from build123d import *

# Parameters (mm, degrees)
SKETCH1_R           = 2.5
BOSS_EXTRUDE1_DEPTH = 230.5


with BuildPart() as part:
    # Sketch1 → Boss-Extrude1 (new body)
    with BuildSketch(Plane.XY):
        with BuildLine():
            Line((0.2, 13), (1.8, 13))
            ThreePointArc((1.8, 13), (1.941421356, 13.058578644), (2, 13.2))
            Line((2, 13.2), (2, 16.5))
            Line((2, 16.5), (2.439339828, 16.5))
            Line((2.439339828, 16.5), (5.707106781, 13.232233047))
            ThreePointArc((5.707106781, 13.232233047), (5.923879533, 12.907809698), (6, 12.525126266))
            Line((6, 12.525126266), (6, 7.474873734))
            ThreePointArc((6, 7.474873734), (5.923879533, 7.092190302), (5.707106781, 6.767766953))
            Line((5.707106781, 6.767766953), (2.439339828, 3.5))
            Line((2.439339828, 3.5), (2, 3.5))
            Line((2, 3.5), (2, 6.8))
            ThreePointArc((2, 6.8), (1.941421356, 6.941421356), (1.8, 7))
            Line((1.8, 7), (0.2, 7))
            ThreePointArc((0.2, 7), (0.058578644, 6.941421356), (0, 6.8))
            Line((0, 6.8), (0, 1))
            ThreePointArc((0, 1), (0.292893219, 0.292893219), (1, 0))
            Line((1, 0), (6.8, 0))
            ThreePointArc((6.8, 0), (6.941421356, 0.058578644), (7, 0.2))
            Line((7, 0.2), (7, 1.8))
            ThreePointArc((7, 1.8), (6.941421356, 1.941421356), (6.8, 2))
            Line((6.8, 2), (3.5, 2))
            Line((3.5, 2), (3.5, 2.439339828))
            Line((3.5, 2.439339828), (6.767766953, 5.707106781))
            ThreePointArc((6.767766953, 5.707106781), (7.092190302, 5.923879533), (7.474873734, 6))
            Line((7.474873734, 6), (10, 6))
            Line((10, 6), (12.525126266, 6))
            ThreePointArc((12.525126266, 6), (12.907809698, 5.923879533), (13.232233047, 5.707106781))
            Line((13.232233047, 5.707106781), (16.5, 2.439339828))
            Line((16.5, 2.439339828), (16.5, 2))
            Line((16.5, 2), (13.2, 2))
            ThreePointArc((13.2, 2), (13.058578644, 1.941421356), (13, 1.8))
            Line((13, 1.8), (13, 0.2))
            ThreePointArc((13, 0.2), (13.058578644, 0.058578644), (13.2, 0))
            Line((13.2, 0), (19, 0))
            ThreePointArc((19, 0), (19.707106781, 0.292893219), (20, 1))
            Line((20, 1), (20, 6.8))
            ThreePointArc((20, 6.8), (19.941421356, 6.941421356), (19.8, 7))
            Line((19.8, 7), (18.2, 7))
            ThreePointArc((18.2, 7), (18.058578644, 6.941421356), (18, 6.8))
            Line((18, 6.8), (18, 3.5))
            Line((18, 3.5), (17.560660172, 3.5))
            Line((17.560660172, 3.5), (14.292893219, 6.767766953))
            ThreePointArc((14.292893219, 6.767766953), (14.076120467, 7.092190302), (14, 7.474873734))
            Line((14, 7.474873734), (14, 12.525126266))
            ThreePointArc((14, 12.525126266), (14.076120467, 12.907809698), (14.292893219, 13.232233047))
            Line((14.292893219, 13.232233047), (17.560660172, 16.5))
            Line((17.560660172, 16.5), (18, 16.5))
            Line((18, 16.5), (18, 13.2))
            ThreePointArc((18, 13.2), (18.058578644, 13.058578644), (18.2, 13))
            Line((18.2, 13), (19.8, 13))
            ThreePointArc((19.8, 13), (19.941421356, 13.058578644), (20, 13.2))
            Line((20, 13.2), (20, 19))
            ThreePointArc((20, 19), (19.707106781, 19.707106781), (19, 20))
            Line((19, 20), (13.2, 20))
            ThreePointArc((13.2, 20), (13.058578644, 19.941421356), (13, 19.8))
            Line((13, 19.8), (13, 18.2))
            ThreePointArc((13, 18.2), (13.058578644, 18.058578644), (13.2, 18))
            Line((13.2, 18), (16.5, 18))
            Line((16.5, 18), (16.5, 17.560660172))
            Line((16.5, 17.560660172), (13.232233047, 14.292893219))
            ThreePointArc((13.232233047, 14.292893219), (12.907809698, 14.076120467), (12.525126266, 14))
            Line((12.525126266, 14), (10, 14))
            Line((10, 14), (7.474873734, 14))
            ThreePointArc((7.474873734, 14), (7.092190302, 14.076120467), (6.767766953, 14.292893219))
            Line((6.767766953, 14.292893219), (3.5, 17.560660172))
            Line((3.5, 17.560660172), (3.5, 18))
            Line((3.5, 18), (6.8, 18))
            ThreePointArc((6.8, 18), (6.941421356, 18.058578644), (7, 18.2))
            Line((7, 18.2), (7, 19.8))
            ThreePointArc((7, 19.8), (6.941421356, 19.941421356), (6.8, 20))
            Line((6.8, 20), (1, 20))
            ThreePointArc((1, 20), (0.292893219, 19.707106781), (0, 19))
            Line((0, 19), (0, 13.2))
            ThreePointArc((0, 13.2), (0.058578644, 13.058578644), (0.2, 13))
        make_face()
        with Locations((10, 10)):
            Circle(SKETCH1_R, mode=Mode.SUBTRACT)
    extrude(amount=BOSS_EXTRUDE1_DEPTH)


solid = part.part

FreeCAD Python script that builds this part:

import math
import FreeCAD as App
import Part
import Sketcher
Q = App.Units.Quantity

doc = App.newDocument("Part")
body = doc.addObject("PartDesign::Body", "Body")

sketch1 = body.newObject("Sketcher::SketchObject", "Sketch")
sketch1.AttachmentSupport = (doc.getObject("XY_Plane"), [""])
sketch1.MapMode = "FlatFace"
sketch1.addGeometry(Part.LineSegment(App.Vector(0.2, 13, 0), App.Vector(1.8, 13, 0)), False)
sketch1.addGeometry(Part.ArcOfCircle(Part.Circle(App.Vector(1.8, 13.2, 0), App.Vector(0, 0, 1), 0.2), math.radians(-90), math.radians(0)), False)
sketch1.addGeometry(Part.LineSegment(App.Vector(2, 13.2, 0), App.Vector(2, 16.5, 0)), False)
sketch1.addGeometry(Part.LineSegment(App.Vector(2, 16.5, 0), App.Vector(2.44, 16.5, 0)), False)
sketch1.addGeometry(Part.LineSegment(App.Vector(2.44, 16.5, 0), App.Vector(5.71, 13.23, 0)), False)
sketch1.addGeometry(Part.ArcOfCircle(Part.Circle(App.Vector(5, 12.53, 0), App.Vector(0, 0, 1), 1), math.radians(0), math.radians(45)), False)
sketch1.addGeometry(Part.LineSegment(App.Vector(6, 12.53, 0), App.Vector(6, 7.47, 0)), False)
sketch1.addGeometry(Part.ArcOfCircle(Part.Circle(App.Vector(5, 7.47, 0), App.Vector(0, 0, 1), 1), math.radians(-45), math.radians(0)), False)
sketch1.addGeometry(Part.LineSegment(App.Vector(5.71, 6.77, 0), App.Vector(2.44, 3.5, 0)), False)
sketch1.addGeometry(Part.LineSegment(App.Vector(2.44, 3.5, 0), App.Vector(2, 3.5, 0)), False)
sketch1.addGeometry(Part.LineSegment(App.Vector(2, 3.5, 0), App.Vector(2, 6.8, 0)), False)
sketch1.addGeometry(Part.ArcOfCircle(Part.Circle(App.Vector(1.8, 6.8, 0), App.Vector(0, 0, 1), 0.2), math.radians(0), math.radians(90)), False)
sketch1.addGeometry(Part.LineSegment(App.Vector(1.8, 7, 0), App.Vector(0.2, 7, 0)), False)
sketch1.addGeometry(Part.ArcOfCircle(Part.Circle(App.Vector(0.2, 6.8, 0), App.Vector(0, 0, 1), 0.2), math.radians(90), math.radians(180)), False)
sketch1.addGeometry(Part.LineSegment(App.Vector(0, 6.8, 0), App.Vector(0, 1, 0)), False)
sketch1.addGeometry(Part.ArcOfCircle(Part.Circle(App.Vector(1, 1, 0), App.Vector(0, 0, 1), 1), math.radians(-180), math.radians(-90)), False)
sketch1.addGeometry(Part.LineSegment(App.Vector(1, 0, 0), App.Vector(6.8, 0, 0)), False)
sketch1.addGeometry(Part.ArcOfCircle(Part.Circle(App.Vector(6.8, 0.2, 0), App.Vector(0, 0, 1), 0.2), math.radians(-90), math.radians(0)), False)
sketch1.addGeometry(Part.LineSegment(App.Vector(7, 0.2, 0), App.Vector(7, 1.8, 0)), False)
sketch1.addGeometry(Part.ArcOfCircle(Part.Circle(App.Vector(6.8, 1.8, 0), App.Vector(0, 0, 1), 0.2), math.radians(0), math.radians(90)), False)
sketch1.addGeometry(Part.LineSegment(App.Vector(6.8, 2, 0), App.Vector(3.5, 2, 0)), False)
sketch1.addGeometry(Part.LineSegment(App.Vector(3.5, 2, 0), App.Vector(3.5, 2.44, 0)), False)
sketch1.addGeometry(Part.LineSegment(App.Vector(3.5, 2.44, 0), App.Vector(6.77, 5.71, 0)), False)
sketch1.addGeometry(Part.ArcOfCircle(Part.Circle(App.Vector(7.47, 5, 0), App.Vector(0, 0, 1), 1), math.radians(90), math.radians(135)), False)
sketch1.addGeometry(Part.LineSegment(App.Vector(7.47, 6, 0), App.Vector(12.53, 6, 0)), False)
sketch1.addGeometry(Part.ArcOfCircle(Part.Circle(App.Vector(12.53, 5, 0), App.Vector(0, 0, 1), 1), math.radians(45), math.radians(90)), False)
sketch1.addGeometry(Part.LineSegment(App.Vector(13.23, 5.71, 0), App.Vector(16.5, 2.44, 0)), False)
sketch1.addGeometry(Part.LineSegment(App.Vector(16.5, 2.44, 0), App.Vector(16.5, 2, 0)), False)
sketch1.addGeometry(Part.LineSegment(App.Vector(16.5, 2, 0), App.Vector(13.2, 2, 0)), False)
sketch1.addGeometry(Part.ArcOfCircle(Part.Circle(App.Vector(13.2, 1.8, 0), App.Vector(0, 0, 1), 0.2), math.radians(90), math.radians(180)), False)
sketch1.addGeometry(Part.LineSegment(App.Vector(13, 1.8, 0), App.Vector(13, 0.2, 0)), False)
sketch1.addGeometry(Part.ArcOfCircle(Part.Circle(App.Vector(13.2, 0.2, 0), App.Vector(0, 0, 1), 0.2), math.radians(-180), math.radians(-90)), False)
sketch1.addGeometry(Part.LineSegment(App.Vector(13.2, 0, 0), App.Vector(19, 0, 0)), False)
sketch1.addGeometry(Part.ArcOfCircle(Part.Circle(App.Vector(19, 1, 0), App.Vector(0, 0, 1), 1), math.radians(-90), math.radians(0)), False)
sketch1.addGeometry(Part.LineSegment(App.Vector(20, 1, 0), App.Vector(20, 6.8, 0)), False)
sketch1.addGeometry(Part.ArcOfCircle(Part.Circle(App.Vector(19.8, 6.8, 0), App.Vector(0, 0, 1), 0.2), math.radians(0), math.radians(90)), False)
sketch1.addGeometry(Part.LineSegment(App.Vector(19.8, 7, 0), App.Vector(18.2, 7, 0)), False)
sketch1.addGeometry(Part.ArcOfCircle(Part.Circle(App.Vector(18.2, 6.8, 0), App.Vector(0, 0, 1), 0.2), math.radians(90), math.radians(180)), False)
sketch1.addGeometry(Part.LineSegment(App.Vector(18, 6.8, 0), App.Vector(18, 3.5, 0)), False)
sketch1.addGeometry(Part.LineSegment(App.Vector(18, 3.5, 0), App.Vector(17.56, 3.5, 0)), False)
sketch1.addGeometry(Part.LineSegment(App.Vector(17.56, 3.5, 0), App.Vector(14.29, 6.77, 0)), False)
sketch1.addGeometry(Part.ArcOfCircle(Part.Circle(App.Vector(15, 7.47, 0), App.Vector(0, 0, 1), 1), math.radians(180), math.radians(225)), False)
sketch1.addGeometry(Part.LineSegment(App.Vector(14, 7.47, 0), App.Vector(14, 12.53, 0)), False)
sketch1.addGeometry(Part.ArcOfCircle(Part.Circle(App.Vector(15, 12.53, 0), App.Vector(0, 0, 1), 1), math.radians(135), math.radians(180)), False)
sketch1.addGeometry(Part.LineSegment(App.Vector(14.29, 13.23, 0), App.Vector(17.56, 16.5, 0)), False)
sketch1.addGeometry(Part.LineSegment(App.Vector(17.56, 16.5, 0), App.Vector(18, 16.5, 0)), False)
sketch1.addGeometry(Part.LineSegment(App.Vector(18, 16.5, 0), App.Vector(18, 13.2, 0)), False)
sketch1.addGeometry(Part.ArcOfCircle(Part.Circle(App.Vector(18.2, 13.2, 0), App.Vector(0, 0, 1), 0.2), math.radians(-180), math.radians(-90)), False)
sketch1.addGeometry(Part.LineSegment(App.Vector(18.2, 13, 0), App.Vector(19.8, 13, 0)), False)
sketch1.addGeometry(Part.ArcOfCircle(Part.Circle(App.Vector(19.8, 13.2, 0), App.Vector(0, 0, 1), 0.2), math.radians(-90), math.radians(0)), False)
sketch1.addGeometry(Part.LineSegment(App.Vector(20, 13.2, 0), App.Vector(20, 19, 0)), False)
sketch1.addGeometry(Part.ArcOfCircle(Part.Circle(App.Vector(19, 19, 0), App.Vector(0, 0, 1), 1), math.radians(0), math.radians(90)), False)
sketch1.addGeometry(Part.LineSegment(App.Vector(19, 20, 0), App.Vector(13.2, 20, 0)), False)
sketch1.addGeometry(Part.ArcOfCircle(Part.Circle(App.Vector(13.2, 19.8, 0), App.Vector(0, 0, 1), 0.2), math.radians(90), math.radians(180)), False)
sketch1.addGeometry(Part.LineSegment(App.Vector(13, 19.8, 0), App.Vector(13, 18.2, 0)), False)
sketch1.addGeometry(Part.ArcOfCircle(Part.Circle(App.Vector(13.2, 18.2, 0), App.Vector(0, 0, 1), 0.2), math.radians(-180), math.radians(-90)), False)
sketch1.addGeometry(Part.LineSegment(App.Vector(13.2, 18, 0), App.Vector(16.5, 18, 0)), False)
sketch1.addGeometry(Part.LineSegment(App.Vector(16.5, 18, 0), App.Vector(16.5, 17.56, 0)), False)
sketch1.addGeometry(Part.LineSegment(App.Vector(16.5, 17.56, 0), App.Vector(13.23, 14.29, 0)), False)
sketch1.addGeometry(Part.ArcOfCircle(Part.Circle(App.Vector(12.53, 15, 0), App.Vector(0, 0, 1), 1), math.radians(-90), math.radians(-45)), False)
sketch1.addGeometry(Part.LineSegment(App.Vector(12.53, 14, 0), App.Vector(7.47, 14, 0)), False)
sketch1.addGeometry(Part.ArcOfCircle(Part.Circle(App.Vector(7.47, 15, 0), App.Vector(0, 0, 1), 1), math.radians(-135), math.radians(-90)), False)
sketch1.addGeometry(Part.LineSegment(App.Vector(6.77, 14.29, 0), App.Vector(3.5, 17.56, 0)), False)
sketch1.addGeometry(Part.LineSegment(App.Vector(3.5, 17.56, 0), App.Vector(3.5, 18, 0)), False)
sketch1.addGeometry(Part.LineSegment(App.Vector(3.5, 18, 0), App.Vector(6.8, 18, 0)), False)
sketch1.addGeometry(Part.ArcOfCircle(Part.Circle(App.Vector(6.8, 18.2, 0), App.Vector(0, 0, 1), 0.2), math.radians(-90), math.radians(0)), False)
sketch1.addGeometry(Part.LineSegment(App.Vector(7, 18.2, 0), App.Vector(7, 19.8, 0)), False)
sketch1.addGeometry(Part.ArcOfCircle(Part.Circle(App.Vector(6.8, 19.8, 0), App.Vector(0, 0, 1), 0.2), math.radians(0), math.radians(90)), False)
sketch1.addGeometry(Part.LineSegment(App.Vector(6.8, 20, 0), App.Vector(1, 20, 0)), False)
sketch1.addGeometry(Part.ArcOfCircle(Part.Circle(App.Vector(1, 19, 0), App.Vector(0, 0, 1), 1), math.radians(90), math.radians(180)), False)
sketch1.addGeometry(Part.LineSegment(App.Vector(0, 19, 0), App.Vector(0, 13.2, 0)), False)
sketch1.addGeometry(Part.ArcOfCircle(Part.Circle(App.Vector(0.2, 13.2, 0), App.Vector(0, 0, 1), 0.2), math.radians(-180), math.radians(-90)), False)
sketch1.addGeometry(Part.Circle(App.Vector(10, 10, 0), App.Vector(0, 0, 1), 2.5), False)
sketch1.addConstraint(Sketcher.Constraint("Tangent", 0, 2, 1, 1))
sketch1.addConstraint(Sketcher.Constraint("Tangent", 1, 2, 2, 1))
sketch1.addConstraint(Sketcher.Constraint("Coincident", 2, 2, 3, 1))
sketch1.addConstraint(Sketcher.Constraint("Coincident", 3, 2, 4, 1))
sketch1.addConstraint(Sketcher.Constraint("Tangent", 4, 2, 5, 2))
sketch1.addConstraint(Sketcher.Constraint("Tangent", 5, 1, 6, 1))
sketch1.addConstraint(Sketcher.Constraint("Tangent", 6, 2, 7, 2))
sketch1.addConstraint(Sketcher.Constraint("Tangent", 7, 1, 8, 1))
sketch1.addConstraint(Sketcher.Constraint("Coincident", 8, 2, 9, 1))
sketch1.addConstraint(Sketcher.Constraint("Coincident", 9, 2, 10, 1))
sketch1.addConstraint(Sketcher.Constraint("Tangent", 10, 2, 11, 1))
sketch1.addConstraint(Sketcher.Constraint("Tangent", 11, 2, 12, 1))
sketch1.addConstraint(Sketcher.Constraint("Tangent", 12, 2, 13, 1))
sketch1.addConstraint(Sketcher.Constraint("Tangent", 13, 2, 14, 1))
sketch1.addConstraint(Sketcher.Constraint("Tangent", 14, 2, 15, 1))
sketch1.addConstraint(Sketcher.Constraint("Tangent", 15, 2, 16, 1))
sketch1.addConstraint(Sketcher.Constraint("Tangent", 16, 2, 17, 1))
sketch1.addConstraint(Sketcher.Constraint("Tangent", 17, 2, 18, 1))
sketch1.addConstraint(Sketcher.Constraint("Tangent", 18, 2, 19, 1))
sketch1.addConstraint(Sketcher.Constraint("Tangent", 19, 2, 20, 1))
sketch1.addConstraint(Sketcher.Constraint("Coincident", 20, 2, 21, 1))
sketch1.addConstraint(Sketcher.Constraint("Coincident", 21, 2, 22, 1))
sketch1.addConstraint(Sketcher.Constraint("Tangent", 22, 2, 23, 2))
sketch1.addConstraint(Sketcher.Constraint("Tangent", 23, 1, 24, 1))
sketch1.addConstraint(Sketcher.Constraint("Tangent", 24, 2, 25, 2))
sketch1.addConstraint(Sketcher.Constraint("Tangent", 25, 1, 26, 1))
sketch1.addConstraint(Sketcher.Constraint("Coincident", 26, 2, 27, 1))
sketch1.addConstraint(Sketcher.Constraint("Coincident", 27, 2, 28, 1))
sketch1.addConstraint(Sketcher.Constraint("Tangent", 28, 2, 29, 1))
sketch1.addConstraint(Sketcher.Constraint("Tangent", 29, 2, 30, 1))
sketch1.addConstraint(Sketcher.Constraint("Tangent", 30, 2, 31, 1))
sketch1.addConstraint(Sketcher.Constraint("Tangent", 31, 2, 32, 1))
sketch1.addConstraint(Sketcher.Constraint("Tangent", 32, 2, 33, 1))
sketch1.addConstraint(Sketcher.Constraint("Tangent", 33, 2, 34, 1))
sketch1.addConstraint(Sketcher.Constraint("Tangent", 34, 2, 35, 1))
sketch1.addConstraint(Sketcher.Constraint("Tangent", 35, 2, 36, 1))
sketch1.addConstraint(Sketcher.Constraint("Tangent", 36, 2, 37, 1))
sketch1.addConstraint(Sketcher.Constraint("Tangent", 37, 2, 38, 1))
sketch1.addConstraint(Sketcher.Constraint("Coincident", 38, 2, 39, 1))
sketch1.addConstraint(Sketcher.Constraint("Coincident", 39, 2, 40, 1))
sketch1.addConstraint(Sketcher.Constraint("Tangent", 40, 2, 41, 2))
sketch1.addConstraint(Sketcher.Constraint("Tangent", 41, 1, 42, 1))
sketch1.addConstraint(Sketcher.Constraint("Tangent", 42, 2, 43, 2))
sketch1.addConstraint(Sketcher.Constraint("Tangent", 43, 1, 44, 1))
sketch1.addConstraint(Sketcher.Constraint("Coincident", 44, 2, 45, 1))
sketch1.addConstraint(Sketcher.Constraint("Coincident", 45, 2, 46, 1))
sketch1.addConstraint(Sketcher.Constraint("Tangent", 46, 2, 47, 1))
sketch1.addConstraint(Sketcher.Constraint("Tangent", 47, 2, 48, 1))
sketch1.addConstraint(Sketcher.Constraint("Tangent", 48, 2, 49, 1))
sketch1.addConstraint(Sketcher.Constraint("Tangent", 49, 2, 50, 1))
sketch1.addConstraint(Sketcher.Constraint("Tangent", 50, 2, 51, 1))
sketch1.addConstraint(Sketcher.Constraint("Tangent", 51, 2, 52, 1))
sketch1.addConstraint(Sketcher.Constraint("Tangent", 52, 2, 53, 1))
sketch1.addConstraint(Sketcher.Constraint("Tangent", 53, 2, 54, 1))
sketch1.addConstraint(Sketcher.Constraint("Tangent", 54, 2, 55, 1))
sketch1.addConstraint(Sketcher.Constraint("Tangent", 55, 2, 56, 1))
sketch1.addConstraint(Sketcher.Constraint("Coincident", 56, 2, 57, 1))
sketch1.addConstraint(Sketcher.Constraint("Coincident", 57, 2, 58, 1))
sketch1.addConstraint(Sketcher.Constraint("Tangent", 58, 2, 59, 2))
sketch1.addConstraint(Sketcher.Constraint("Tangent", 59, 1, 60, 1))
sketch1.addConstraint(Sketcher.Constraint("Tangent", 60, 2, 61, 2))
sketch1.addConstraint(Sketcher.Constraint("Tangent", 61, 1, 62, 1))
sketch1.addConstraint(Sketcher.Constraint("Coincident", 62, 2, 63, 1))
sketch1.addConstraint(Sketcher.Constraint("Coincident", 63, 2, 64, 1))
sketch1.addConstraint(Sketcher.Constraint("Tangent", 64, 2, 65, 1))
sketch1.addConstraint(Sketcher.Constraint("Tangent", 65, 2, 66, 1))
sketch1.addConstraint(Sketcher.Constraint("Tangent", 66, 2, 67, 1))
sketch1.addConstraint(Sketcher.Constraint("Tangent", 67, 2, 68, 1))
sketch1.addConstraint(Sketcher.Constraint("Tangent", 68, 2, 69, 1))
sketch1.addConstraint(Sketcher.Constraint("Tangent", 69, 2, 70, 1))
sketch1.addConstraint(Sketcher.Constraint("Tangent", 70, 2, 71, 1))
sketch1.addConstraint(Sketcher.Constraint("Tangent", 71, 2, 0, 1))
sketch1.addConstraint(Sketcher.Constraint("Horizontal", 0))
sketch1.addConstraint(Sketcher.Constraint("Vertical", 2))
sketch1.addConstraint(Sketcher.Constraint("Horizontal", 3))
sketch1.addConstraint(Sketcher.Constraint("Vertical", 6))
sketch1.addConstraint(Sketcher.Constraint("Horizontal", 9))
sketch1.addConstraint(Sketcher.Constraint("Vertical", 10))
sketch1.addConstraint(Sketcher.Constraint("Horizontal", 12))
sketch1.addConstraint(Sketcher.Constraint("Vertical", 14))
sketch1.addConstraint(Sketcher.Constraint("Horizontal", 16))
sketch1.addConstraint(Sketcher.Constraint("Vertical", 18))
sketch1.addConstraint(Sketcher.Constraint("Horizontal", 20))
sketch1.addConstraint(Sketcher.Constraint("Vertical", 21))
sketch1.addConstraint(Sketcher.Constraint("Horizontal", 24))
sketch1.addConstraint(Sketcher.Constraint("Vertical", 27))
sketch1.addConstraint(Sketcher.Constraint("Horizontal", 28))
sketch1.addConstraint(Sketcher.Constraint("Vertical", 30))
sketch1.addConstraint(Sketcher.Constraint("Horizontal", 32))
sketch1.addConstraint(Sketcher.Constraint("Vertical", 34))
sketch1.addConstraint(Sketcher.Constraint("Horizontal", 36))
sketch1.addConstraint(Sketcher.Constraint("Vertical", 38))
sketch1.addConstraint(Sketcher.Constraint("Horizontal", 39))
sketch1.addConstraint(Sketcher.Constraint("Vertical", 42))
sketch1.addConstraint(Sketcher.Constraint("Horizontal", 45))
sketch1.addConstraint(Sketcher.Constraint("Vertical", 46))
sketch1.addConstraint(Sketcher.Constraint("Horizontal", 48))
sketch1.addConstraint(Sketcher.Constraint("Vertical", 50))
sketch1.addConstraint(Sketcher.Constraint("Horizontal", 52))
sketch1.addConstraint(Sketcher.Constraint("Vertical", 54))
sketch1.addConstraint(Sketcher.Constraint("Horizontal", 56))
sketch1.addConstraint(Sketcher.Constraint("Vertical", 57))
sketch1.addConstraint(Sketcher.Constraint("Horizontal", 60))
sketch1.addConstraint(Sketcher.Constraint("Vertical", 63))
sketch1.addConstraint(Sketcher.Constraint("Horizontal", 64))
sketch1.addConstraint(Sketcher.Constraint("Vertical", 66))
sketch1.addConstraint(Sketcher.Constraint("Horizontal", 68))
sketch1.addConstraint(Sketcher.Constraint("Vertical", 70))
sketch1.addConstraint(Sketcher.Constraint("Equal", 5, 7))
sketch1.addConstraint(Sketcher.Constraint("Equal", 1, 11))
sketch1.addConstraint(Sketcher.Constraint("Equal", 11, 13))
sketch1.addConstraint(Sketcher.Constraint("Equal", 7, 15))
sketch1.addConstraint(Sketcher.Constraint("Equal", 13, 17))
sketch1.addConstraint(Sketcher.Constraint("Equal", 17, 19))
sketch1.addConstraint(Sketcher.Constraint("Equal", 15, 23))
sketch1.addConstraint(Sketcher.Constraint("Equal", 23, 25))
sketch1.addConstraint(Sketcher.Constraint("Equal", 19, 29))
sketch1.addConstraint(Sketcher.Constraint("Equal", 29, 31))
sketch1.addConstraint(Sketcher.Constraint("Equal", 25, 33))
sketch1.addConstraint(Sketcher.Constraint("Equal", 31, 35))
sketch1.addConstraint(Sketcher.Constraint("Equal", 35, 37))
sketch1.addConstraint(Sketcher.Constraint("Equal", 33, 41))
sketch1.addConstraint(Sketcher.Constraint("Equal", 41, 43))
sketch1.addConstraint(Sketcher.Constraint("Equal", 37, 47))
sketch1.addConstraint(Sketcher.Constraint("Equal", 47, 49))
sketch1.addConstraint(Sketcher.Constraint("Equal", 43, 51))
sketch1.addConstraint(Sketcher.Constraint("Equal", 49, 53))
sketch1.addConstraint(Sketcher.Constraint("Equal", 53, 55))
sketch1.addConstraint(Sketcher.Constraint("Equal", 51, 59))
sketch1.addConstraint(Sketcher.Constraint("Equal", 59, 61))
sketch1.addConstraint(Sketcher.Constraint("Equal", 55, 65))
sketch1.addConstraint(Sketcher.Constraint("Equal", 65, 67))
sketch1.addConstraint(Sketcher.Constraint("Equal", 61, 69))
sketch1.addConstraint(Sketcher.Constraint("Equal", 67, 71))
sketch1.addConstraint(Sketcher.Constraint("PointOnObject", 13, 2, -2))
sketch1.addConstraint(Sketcher.Constraint("PointOnObject", 15, 2, -1))
sketch1.addConstraint(Sketcher.Constraint("PointOnObject", 31, 2, -1))
sketch1.addConstraint(Sketcher.Constraint("PointOnObject", 69, 2, -2))
sketch1.addConstraint(Sketcher.Constraint("Perpendicular", 4, 8))
sketch1.addConstraint(Sketcher.Constraint("Parallel", 8, 22))
sketch1.addConstraint(Sketcher.Constraint("Perpendicular", 22, 26))
sketch1.addConstraint(Sketcher.Constraint("Parallel", 26, 40))
sketch1.addConstraint(Sketcher.Constraint("Perpendicular", 40, 44))
sketch1.addConstraint(Sketcher.Constraint("Parallel", 44, 58))
sketch1.addConstraint(Sketcher.Constraint("Perpendicular", 58, 62))
sketch1.addConstraint(Sketcher.Constraint("Horizontal", 19, 3, 29, 3))
sketch1.addConstraint(Sketcher.Constraint("Horizontal", 13, 3, 35, 3))
sketch1.addConstraint(Sketcher.Constraint("Horizontal", 7, 3, 41, 3))
sketch1.addConstraint(Sketcher.Constraint("Horizontal", 5, 3, 43, 3))
sketch1.addConstraint(Sketcher.Constraint("Horizontal", 1, 3, 47, 3))
sketch1.addConstraint(Sketcher.Constraint("Horizontal", 55, 3, 65, 3))
sketch1.addConstraint(Sketcher.Constraint("Horizontal", 53, 3, 67, 3))
sketch1.addConstraint(Sketcher.Constraint("Horizontal", 22, 2, 25, 1))
sketch1.addConstraint(Sketcher.Constraint("Horizontal", 21, 2, 26, 2))
sketch1.addConstraint(Sketcher.Constraint("Horizontal", 9, 2, 38, 2))
sketch1.addConstraint(Sketcher.Constraint("Horizontal", 3, 2, 44, 2))
sketch1.addConstraint(Sketcher.Constraint("Horizontal", 57, 2, 62, 2))
sketch1.addConstraint(Sketcher.Constraint("Vertical", 1, 3, 11, 3))
sketch1.addConstraint(Sketcher.Constraint("Vertical", 37, 3, 47, 3))
sketch1.addConstraint(Sketcher.Constraint("Vertical", 35, 3, 49, 3))
sketch1.addConstraint(Sketcher.Constraint("Vertical", 31, 3, 53, 3))
sketch1.addConstraint(Sketcher.Constraint("Vertical", 25, 3, 59, 3))
sketch1.addConstraint(Sketcher.Constraint("Vertical", 23, 3, 61, 3))
sketch1.addConstraint(Sketcher.Constraint("Vertical", 19, 3, 65, 3))
sketch1.addConstraint(Sketcher.Constraint("Vertical", 3, 2, 8, 2))
sketch1.addConstraint(Sketcher.Constraint("Vertical", 27, 2, 56, 2))
sketch1.addConstraint(Sketcher.Constraint("Equal", 20, 28))
sketch1.addConstraint(Sketcher.Constraint("Equal", 16, 32))
sketch1.addConstraint(Sketcher.Constraint("Equal", 12, 36))
sketch1.addConstraint(Sketcher.Constraint("Equal", 9, 39))
sketch1.addConstraint(Sketcher.Constraint("Equal", 64, 2))
sketch1.addConstraint(Sketcher.Constraint("Equal", 60, 6))
sketch1.addConstraint(Sketcher.Constraint("Equal", 2, 10))
sketch1.addConstraint(Sketcher.Constraint("Equal", 68, 14))
sketch1.addConstraint(Sketcher.Constraint("Equal", 48, 18))
sketch1.addConstraint(Sketcher.Constraint("Equal", 45, 21))
sketch1.addConstraint(Sketcher.Constraint("Equal", 34, 50))
sketch1.addConstraint(Sketcher.Constraint("Equal", 30, 54))
sketch1.addConstraint(Sketcher.Constraint("Equal", 27, 57))
sketch1.addConstraint(Sketcher.Constraint("Equal", 8, 22))
sketch1.addConstraint(Sketcher.Constraint("Diameter", 72, Q("5 mm")))
sketch1.addConstraint(Sketcher.Constraint("Radius", 5, Q("1 mm")))
sketch1.addConstraint(Sketcher.Constraint("Radius", 1, Q("0.2 mm")))
sketch1.addConstraint(Sketcher.Constraint("DistanceX", 0, 1, 0, 2, Q("1.6 mm")))
sketch1.addConstraint(Sketcher.Constraint("DistanceX", 16, 1, 16, 2, Q("5.8 mm")))
sketch1.addConstraint(Sketcher.Constraint("DistanceX", 20, 2, 20, 1, Q("3.3 mm")))
sketch1.addConstraint(Sketcher.Constraint("DistanceX", -1, 1, 5, 3, Q("5 mm")))
sketch1.addConstraint(Sketcher.Constraint("DistanceX", -1, 1, 33, 3, Q("19 mm")))
sketch1.addConstraint(Sketcher.Constraint("DistanceX", -1, 1, 72, 3, Q("10 mm")))
sketch1.addConstraint(Sketcher.Constraint("DistanceY", -1, 1, 72, 3, Q("10 mm")))
sketch1.addConstraint(Sketcher.Constraint("DistanceX", 3, 1, 3, 2, Q("0.43934 mm")))
pad1 = body.newObject("PartDesign::Pad", "Pad")
pad1.Profile = sketch1
pad1.Length = 230.5

doc.recompute()
